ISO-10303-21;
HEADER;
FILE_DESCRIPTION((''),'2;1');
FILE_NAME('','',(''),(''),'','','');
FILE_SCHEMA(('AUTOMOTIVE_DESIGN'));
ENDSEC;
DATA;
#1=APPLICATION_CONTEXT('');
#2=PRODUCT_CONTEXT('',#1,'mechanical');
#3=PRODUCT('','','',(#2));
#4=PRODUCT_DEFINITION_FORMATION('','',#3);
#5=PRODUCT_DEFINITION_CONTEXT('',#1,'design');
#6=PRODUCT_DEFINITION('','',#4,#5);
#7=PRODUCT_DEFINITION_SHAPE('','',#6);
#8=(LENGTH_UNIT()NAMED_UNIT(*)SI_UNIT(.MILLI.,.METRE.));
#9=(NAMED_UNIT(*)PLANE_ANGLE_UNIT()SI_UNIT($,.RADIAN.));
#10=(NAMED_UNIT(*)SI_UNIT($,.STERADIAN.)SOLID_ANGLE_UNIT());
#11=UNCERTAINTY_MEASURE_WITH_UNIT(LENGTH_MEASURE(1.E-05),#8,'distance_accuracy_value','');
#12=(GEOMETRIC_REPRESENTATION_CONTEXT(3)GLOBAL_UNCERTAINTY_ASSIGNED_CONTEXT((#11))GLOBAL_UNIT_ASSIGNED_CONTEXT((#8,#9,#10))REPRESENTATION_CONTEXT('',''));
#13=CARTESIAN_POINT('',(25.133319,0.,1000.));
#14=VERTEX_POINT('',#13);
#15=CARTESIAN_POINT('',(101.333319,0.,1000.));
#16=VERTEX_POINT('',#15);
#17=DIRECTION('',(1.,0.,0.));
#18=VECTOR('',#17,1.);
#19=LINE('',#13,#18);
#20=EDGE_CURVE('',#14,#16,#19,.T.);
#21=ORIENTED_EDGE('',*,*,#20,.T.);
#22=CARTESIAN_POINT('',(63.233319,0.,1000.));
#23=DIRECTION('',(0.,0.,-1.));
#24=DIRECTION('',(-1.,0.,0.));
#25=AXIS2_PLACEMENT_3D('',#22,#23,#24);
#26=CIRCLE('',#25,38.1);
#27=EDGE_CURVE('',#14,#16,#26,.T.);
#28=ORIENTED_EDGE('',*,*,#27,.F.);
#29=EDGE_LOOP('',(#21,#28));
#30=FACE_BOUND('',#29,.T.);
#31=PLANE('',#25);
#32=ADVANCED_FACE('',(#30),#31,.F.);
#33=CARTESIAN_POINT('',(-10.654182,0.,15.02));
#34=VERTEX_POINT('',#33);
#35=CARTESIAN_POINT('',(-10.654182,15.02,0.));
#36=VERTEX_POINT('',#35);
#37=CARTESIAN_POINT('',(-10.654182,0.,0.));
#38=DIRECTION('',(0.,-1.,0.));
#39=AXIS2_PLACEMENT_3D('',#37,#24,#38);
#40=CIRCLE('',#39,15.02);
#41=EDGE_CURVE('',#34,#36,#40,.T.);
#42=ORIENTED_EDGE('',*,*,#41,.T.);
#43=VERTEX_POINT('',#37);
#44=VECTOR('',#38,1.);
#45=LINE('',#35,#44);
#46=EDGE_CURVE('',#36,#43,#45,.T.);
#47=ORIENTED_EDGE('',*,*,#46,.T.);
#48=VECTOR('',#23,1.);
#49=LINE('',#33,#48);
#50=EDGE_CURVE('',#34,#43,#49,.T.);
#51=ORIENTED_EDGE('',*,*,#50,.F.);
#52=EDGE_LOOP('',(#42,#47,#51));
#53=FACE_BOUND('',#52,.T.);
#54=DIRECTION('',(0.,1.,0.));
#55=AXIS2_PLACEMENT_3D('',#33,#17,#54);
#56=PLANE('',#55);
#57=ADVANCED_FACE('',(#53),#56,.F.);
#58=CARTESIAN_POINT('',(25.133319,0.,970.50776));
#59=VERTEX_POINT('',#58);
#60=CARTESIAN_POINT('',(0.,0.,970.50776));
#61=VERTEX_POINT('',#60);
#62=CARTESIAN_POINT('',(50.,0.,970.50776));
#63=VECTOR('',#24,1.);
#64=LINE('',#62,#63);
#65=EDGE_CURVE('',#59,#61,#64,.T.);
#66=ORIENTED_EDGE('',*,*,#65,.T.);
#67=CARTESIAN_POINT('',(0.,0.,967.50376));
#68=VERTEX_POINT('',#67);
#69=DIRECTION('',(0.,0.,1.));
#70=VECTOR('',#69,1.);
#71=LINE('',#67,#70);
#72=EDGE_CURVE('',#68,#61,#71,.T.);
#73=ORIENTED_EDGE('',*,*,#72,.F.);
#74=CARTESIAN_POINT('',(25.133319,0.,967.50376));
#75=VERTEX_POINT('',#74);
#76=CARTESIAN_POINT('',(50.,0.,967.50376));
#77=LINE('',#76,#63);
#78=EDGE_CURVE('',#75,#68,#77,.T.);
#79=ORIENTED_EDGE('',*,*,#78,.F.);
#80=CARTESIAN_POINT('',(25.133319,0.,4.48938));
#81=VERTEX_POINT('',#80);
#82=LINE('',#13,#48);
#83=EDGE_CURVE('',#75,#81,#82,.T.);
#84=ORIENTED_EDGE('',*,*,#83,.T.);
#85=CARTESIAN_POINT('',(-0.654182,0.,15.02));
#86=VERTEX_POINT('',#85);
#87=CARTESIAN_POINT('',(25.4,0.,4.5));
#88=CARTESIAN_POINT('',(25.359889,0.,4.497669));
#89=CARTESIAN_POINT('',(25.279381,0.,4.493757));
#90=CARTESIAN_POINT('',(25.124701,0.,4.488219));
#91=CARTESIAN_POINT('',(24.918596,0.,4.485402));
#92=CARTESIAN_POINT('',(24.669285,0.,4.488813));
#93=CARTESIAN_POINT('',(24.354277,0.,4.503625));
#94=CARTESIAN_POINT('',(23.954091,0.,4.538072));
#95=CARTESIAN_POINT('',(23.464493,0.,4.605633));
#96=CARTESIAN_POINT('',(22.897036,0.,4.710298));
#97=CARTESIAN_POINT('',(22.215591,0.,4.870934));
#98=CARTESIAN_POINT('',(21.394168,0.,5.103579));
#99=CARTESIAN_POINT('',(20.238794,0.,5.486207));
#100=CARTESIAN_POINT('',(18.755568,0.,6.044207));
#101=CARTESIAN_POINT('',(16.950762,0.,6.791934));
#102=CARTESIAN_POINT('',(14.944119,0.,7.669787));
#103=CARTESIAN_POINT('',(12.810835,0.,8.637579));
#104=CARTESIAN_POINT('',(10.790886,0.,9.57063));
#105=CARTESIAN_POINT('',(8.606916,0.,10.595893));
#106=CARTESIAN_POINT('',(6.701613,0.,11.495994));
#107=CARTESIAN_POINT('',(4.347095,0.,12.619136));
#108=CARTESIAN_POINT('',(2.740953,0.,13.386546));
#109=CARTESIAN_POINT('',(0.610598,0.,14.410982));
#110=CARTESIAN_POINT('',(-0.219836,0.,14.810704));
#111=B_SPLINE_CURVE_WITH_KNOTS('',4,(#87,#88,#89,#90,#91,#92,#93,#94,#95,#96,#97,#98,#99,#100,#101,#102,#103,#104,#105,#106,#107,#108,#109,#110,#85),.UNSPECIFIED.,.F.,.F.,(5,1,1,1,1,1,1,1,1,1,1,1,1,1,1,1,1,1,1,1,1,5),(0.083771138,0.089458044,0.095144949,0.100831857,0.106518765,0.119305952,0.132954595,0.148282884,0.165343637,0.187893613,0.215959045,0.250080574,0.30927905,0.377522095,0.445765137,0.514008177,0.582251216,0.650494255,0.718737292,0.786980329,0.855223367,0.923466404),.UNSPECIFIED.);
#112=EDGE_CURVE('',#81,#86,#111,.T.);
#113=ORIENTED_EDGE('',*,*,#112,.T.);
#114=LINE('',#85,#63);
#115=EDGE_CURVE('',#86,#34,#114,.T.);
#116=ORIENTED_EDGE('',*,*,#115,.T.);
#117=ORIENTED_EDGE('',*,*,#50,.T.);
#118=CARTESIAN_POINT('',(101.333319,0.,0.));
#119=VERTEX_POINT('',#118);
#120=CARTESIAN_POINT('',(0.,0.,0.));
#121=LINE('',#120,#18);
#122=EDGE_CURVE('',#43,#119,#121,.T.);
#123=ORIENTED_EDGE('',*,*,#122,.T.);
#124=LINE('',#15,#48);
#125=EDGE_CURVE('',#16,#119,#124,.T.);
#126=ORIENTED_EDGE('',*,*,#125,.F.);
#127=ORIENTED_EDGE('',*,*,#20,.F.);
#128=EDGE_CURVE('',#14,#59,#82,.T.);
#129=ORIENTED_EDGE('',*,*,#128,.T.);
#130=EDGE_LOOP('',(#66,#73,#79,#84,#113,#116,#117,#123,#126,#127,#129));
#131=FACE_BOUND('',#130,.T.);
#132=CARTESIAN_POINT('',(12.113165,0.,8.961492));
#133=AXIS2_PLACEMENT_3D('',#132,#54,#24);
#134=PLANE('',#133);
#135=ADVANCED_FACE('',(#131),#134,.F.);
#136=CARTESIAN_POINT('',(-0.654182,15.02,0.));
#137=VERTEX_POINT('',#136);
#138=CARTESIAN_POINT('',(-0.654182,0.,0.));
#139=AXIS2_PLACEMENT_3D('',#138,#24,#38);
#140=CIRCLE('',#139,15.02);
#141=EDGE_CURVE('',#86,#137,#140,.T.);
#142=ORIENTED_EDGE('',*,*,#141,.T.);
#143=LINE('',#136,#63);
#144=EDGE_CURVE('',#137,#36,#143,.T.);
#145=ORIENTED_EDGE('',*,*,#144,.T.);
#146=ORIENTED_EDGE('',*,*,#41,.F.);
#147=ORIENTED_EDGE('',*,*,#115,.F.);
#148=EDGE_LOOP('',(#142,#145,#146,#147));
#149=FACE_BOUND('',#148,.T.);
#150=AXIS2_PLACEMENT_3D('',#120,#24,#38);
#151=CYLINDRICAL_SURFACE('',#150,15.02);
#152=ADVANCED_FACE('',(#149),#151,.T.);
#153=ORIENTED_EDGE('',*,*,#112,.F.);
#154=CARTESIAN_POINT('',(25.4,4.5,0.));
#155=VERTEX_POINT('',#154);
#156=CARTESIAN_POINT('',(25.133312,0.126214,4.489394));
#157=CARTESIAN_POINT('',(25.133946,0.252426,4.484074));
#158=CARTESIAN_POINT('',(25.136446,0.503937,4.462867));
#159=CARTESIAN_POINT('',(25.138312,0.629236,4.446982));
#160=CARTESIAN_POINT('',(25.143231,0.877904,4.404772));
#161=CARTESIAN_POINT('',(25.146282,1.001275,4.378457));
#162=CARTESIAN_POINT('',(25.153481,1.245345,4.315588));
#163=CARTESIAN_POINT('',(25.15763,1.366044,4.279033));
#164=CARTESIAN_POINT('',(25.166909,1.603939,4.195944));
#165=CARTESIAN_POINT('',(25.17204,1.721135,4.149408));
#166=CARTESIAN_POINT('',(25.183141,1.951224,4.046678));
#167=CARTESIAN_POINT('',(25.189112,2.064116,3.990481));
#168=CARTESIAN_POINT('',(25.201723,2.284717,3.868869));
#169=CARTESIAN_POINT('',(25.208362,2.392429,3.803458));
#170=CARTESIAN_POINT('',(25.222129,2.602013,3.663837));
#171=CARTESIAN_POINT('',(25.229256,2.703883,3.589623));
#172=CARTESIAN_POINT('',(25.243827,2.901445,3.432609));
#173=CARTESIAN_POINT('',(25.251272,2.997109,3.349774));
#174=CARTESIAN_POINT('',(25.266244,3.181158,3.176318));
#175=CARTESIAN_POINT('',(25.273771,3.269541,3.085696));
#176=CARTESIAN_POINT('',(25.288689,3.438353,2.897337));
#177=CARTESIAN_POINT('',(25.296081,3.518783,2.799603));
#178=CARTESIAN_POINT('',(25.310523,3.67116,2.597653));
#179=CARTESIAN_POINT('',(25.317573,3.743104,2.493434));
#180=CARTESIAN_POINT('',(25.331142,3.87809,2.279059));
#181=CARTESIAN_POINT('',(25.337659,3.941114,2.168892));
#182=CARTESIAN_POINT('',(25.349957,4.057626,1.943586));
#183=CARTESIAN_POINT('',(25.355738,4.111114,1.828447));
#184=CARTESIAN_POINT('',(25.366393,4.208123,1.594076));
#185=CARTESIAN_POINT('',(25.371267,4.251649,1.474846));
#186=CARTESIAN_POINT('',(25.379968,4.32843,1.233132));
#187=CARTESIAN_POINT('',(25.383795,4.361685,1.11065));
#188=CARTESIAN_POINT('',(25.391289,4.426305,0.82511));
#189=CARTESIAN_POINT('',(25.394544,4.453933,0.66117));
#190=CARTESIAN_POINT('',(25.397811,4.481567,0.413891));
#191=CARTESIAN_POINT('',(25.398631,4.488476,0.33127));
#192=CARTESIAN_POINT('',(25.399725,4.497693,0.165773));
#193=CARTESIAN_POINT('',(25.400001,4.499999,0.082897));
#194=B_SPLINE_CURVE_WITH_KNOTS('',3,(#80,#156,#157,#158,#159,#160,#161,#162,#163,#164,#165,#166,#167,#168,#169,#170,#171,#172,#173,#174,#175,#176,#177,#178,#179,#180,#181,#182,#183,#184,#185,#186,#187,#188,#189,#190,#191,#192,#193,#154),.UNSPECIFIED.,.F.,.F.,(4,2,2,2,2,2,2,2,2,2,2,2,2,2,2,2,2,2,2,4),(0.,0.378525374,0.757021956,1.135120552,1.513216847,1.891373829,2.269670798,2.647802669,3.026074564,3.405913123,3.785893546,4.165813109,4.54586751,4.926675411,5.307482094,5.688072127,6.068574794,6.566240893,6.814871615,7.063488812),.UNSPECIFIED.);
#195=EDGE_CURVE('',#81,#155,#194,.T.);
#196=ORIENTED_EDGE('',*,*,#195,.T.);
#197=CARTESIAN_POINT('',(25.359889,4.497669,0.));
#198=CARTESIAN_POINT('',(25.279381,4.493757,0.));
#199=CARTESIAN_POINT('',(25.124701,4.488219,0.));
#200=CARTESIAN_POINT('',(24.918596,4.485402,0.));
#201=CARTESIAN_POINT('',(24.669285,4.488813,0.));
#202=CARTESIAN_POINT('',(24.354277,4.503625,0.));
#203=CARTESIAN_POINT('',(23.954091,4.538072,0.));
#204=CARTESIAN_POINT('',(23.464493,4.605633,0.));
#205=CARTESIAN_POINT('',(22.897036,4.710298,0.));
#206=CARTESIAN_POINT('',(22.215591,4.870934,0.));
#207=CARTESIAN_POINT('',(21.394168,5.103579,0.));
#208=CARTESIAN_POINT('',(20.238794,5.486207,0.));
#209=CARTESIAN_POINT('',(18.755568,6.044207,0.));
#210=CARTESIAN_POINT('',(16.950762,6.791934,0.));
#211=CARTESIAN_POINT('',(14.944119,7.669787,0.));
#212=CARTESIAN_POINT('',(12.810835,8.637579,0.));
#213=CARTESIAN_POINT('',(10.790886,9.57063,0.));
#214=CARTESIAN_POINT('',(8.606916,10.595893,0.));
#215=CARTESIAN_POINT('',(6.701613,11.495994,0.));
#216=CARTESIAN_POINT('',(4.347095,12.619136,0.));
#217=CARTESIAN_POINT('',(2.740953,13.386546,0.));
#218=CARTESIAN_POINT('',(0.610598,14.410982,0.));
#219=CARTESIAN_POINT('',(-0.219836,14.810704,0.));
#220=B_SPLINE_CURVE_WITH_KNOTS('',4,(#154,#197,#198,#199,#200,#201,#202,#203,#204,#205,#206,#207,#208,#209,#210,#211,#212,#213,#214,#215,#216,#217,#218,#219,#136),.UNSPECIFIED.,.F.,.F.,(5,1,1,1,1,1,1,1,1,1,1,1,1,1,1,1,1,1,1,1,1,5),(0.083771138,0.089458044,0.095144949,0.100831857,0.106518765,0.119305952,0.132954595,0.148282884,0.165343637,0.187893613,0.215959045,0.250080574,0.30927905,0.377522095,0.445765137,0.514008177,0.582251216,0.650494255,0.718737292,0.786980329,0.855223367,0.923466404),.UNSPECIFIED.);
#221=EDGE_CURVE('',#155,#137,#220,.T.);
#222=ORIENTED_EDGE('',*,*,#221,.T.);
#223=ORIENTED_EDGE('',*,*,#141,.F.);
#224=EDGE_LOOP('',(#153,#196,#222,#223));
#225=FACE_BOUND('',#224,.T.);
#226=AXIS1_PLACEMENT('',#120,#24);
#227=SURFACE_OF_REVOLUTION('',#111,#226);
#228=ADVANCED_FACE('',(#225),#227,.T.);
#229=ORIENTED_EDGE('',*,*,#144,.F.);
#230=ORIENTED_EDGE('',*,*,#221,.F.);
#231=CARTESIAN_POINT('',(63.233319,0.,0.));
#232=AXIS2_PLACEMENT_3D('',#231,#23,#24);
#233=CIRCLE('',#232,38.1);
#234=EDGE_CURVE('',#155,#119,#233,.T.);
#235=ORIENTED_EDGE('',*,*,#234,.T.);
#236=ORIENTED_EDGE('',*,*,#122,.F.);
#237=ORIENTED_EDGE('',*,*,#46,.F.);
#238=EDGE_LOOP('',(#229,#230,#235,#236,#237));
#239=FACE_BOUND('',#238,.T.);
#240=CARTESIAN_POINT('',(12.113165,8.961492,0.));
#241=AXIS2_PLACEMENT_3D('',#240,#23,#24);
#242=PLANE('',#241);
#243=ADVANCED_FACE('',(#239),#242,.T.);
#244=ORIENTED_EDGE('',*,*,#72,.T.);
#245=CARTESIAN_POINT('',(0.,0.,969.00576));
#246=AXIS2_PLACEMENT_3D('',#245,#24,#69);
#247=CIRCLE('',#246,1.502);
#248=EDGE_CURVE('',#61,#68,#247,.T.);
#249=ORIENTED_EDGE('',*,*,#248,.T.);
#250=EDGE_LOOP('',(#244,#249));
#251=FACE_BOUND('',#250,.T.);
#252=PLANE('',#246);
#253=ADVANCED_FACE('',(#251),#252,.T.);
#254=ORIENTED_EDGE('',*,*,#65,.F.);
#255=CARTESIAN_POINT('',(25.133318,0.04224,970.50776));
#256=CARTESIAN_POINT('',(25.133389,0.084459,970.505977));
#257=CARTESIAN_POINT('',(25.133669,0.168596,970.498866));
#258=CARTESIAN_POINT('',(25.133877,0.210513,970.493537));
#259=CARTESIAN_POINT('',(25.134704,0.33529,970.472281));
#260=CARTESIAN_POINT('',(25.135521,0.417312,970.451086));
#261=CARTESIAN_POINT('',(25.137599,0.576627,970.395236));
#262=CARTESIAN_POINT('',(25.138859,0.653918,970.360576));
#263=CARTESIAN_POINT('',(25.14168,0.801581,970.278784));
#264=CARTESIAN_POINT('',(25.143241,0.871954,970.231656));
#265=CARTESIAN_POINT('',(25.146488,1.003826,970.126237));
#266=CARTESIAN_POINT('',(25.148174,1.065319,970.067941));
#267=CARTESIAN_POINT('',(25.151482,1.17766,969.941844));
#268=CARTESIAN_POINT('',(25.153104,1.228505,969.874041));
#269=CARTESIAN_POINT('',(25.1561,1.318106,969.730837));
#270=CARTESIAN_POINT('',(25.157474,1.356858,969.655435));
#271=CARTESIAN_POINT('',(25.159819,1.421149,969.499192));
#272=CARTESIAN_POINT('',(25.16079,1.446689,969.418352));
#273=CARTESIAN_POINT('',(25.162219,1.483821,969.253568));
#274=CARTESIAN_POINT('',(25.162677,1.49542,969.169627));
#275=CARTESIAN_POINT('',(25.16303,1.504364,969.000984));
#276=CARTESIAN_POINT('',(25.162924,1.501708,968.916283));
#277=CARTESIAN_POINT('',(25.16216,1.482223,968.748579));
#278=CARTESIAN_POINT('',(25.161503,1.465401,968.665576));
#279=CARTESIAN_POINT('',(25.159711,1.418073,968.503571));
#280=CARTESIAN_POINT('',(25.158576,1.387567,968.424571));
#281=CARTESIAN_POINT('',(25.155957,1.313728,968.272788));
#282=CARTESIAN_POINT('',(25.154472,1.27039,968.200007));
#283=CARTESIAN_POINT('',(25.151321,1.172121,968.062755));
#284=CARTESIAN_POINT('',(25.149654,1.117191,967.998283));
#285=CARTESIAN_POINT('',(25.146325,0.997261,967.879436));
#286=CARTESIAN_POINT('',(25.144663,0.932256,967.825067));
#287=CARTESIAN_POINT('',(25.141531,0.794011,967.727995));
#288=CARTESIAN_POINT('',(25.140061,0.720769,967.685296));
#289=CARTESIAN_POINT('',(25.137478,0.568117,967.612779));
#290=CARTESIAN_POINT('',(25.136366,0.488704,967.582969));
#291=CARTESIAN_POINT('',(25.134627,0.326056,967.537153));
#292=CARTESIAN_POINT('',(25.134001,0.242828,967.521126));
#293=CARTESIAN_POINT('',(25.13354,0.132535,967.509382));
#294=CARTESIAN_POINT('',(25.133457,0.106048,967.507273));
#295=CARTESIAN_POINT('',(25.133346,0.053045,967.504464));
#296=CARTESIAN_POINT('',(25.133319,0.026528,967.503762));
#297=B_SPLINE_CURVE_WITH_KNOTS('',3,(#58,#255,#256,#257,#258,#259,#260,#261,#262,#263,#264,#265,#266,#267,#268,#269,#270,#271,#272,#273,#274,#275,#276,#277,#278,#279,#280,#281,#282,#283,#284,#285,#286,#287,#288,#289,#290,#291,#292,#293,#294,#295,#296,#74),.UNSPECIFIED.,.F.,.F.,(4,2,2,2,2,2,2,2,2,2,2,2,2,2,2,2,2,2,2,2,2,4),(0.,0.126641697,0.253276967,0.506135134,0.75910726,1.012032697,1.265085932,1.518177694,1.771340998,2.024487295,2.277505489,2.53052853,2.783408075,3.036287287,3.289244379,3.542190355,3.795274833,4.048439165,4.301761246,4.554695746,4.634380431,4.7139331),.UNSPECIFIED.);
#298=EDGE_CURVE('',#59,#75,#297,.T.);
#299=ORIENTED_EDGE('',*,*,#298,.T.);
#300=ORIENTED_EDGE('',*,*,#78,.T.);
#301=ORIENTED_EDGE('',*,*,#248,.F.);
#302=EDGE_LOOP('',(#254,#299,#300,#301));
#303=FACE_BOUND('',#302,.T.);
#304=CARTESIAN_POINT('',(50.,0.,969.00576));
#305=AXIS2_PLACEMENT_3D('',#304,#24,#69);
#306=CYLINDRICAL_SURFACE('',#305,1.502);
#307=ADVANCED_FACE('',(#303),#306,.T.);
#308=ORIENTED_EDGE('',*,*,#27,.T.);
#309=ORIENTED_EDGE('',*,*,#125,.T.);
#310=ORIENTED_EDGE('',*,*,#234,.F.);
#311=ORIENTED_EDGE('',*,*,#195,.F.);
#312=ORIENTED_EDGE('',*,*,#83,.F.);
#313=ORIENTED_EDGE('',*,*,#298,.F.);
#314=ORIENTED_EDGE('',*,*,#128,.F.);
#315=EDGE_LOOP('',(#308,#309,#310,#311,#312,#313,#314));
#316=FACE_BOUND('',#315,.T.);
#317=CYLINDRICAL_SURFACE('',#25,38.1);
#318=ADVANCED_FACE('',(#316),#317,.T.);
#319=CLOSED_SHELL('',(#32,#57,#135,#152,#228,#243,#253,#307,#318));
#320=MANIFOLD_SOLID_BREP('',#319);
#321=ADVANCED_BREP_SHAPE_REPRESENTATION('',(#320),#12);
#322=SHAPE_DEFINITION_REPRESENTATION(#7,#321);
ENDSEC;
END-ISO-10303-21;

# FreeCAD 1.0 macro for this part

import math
import FreeCAD as App
import Part
import Sketcher

V = App.Vector
Q = App.Units.Quantity

doc = App.newDocument("Part")
params = doc.addObject("Spreadsheet::Sheet", "Params")
for row, (alias, value) in enumerate([
    ("sketch1_width", "10 mm"),
    ("revolution_angle", "90 deg"),
    ("sketch2_radius", "38.1 mm"),
    ("pad1_length", "1000 mm"),
    ("pad2_length", "50 mm"),
], start=1):
    params.set(f"A{row}", alias)
    params.set(f"B{row}", "=" + value)
    params.setAlias(f"B{row}", alias)

body = doc.addObject("PartDesign::Body", "Body")

sketch1 = body.newObject("Sketcher::SketchObject", "Sketch")
sketch1.AttachmentSupport = (doc.getObject("XY_Plane"), [""])
sketch1.MapMode = "FlatFace"
sketch1.addGeometry([
    Part.LineSegment(V(-0.654182, 15.02, 0), V(-10.654182, 15.02, 0)),
    Part.LineSegment(V(-10.654182, 15.02, 0), V(-10.654182, 0, 0)),
    Part.LineSegment(V(-10.654182, 0, 0), V(35.4, 0, 0)),
    Part.LineSegment(V(35.4, 0, 0), V(35.4, 4.5, 0)),
    Part.LineSegment(V(35.4, 4.5, 0), V(25.4, 4.5, 0)),
    Part.BSplineCurve([V(-0.654182, 15.02, 0), V(-0.219836, 14.810704, 0), V(0.610598, 14.410982, 0), V(2.740953, 13.386546, 0), V(4.347095, 12.619136, 0), V(6.701613, 11.495994, 0), V(8.606916, 10.595893, 0), V(10.790886, 9.57063, 0), V(12.810835, 8.637579, 0), V(14.944119, 7.669787, 0), V(16.950762, 6.791934, 0), V(18.755568, 6.044207, 0), V(20.238794, 5.486207, 0), V(21.394168, 5.103579, 0), V(22.215591, 4.870934, 0), V(22.897036, 4.710298, 0), V(23.464493, 4.605633, 0), V(23.954091, 4.538072, 0), V(24.354277, 4.503625, 0), V(24.669285, 4.488813, 0), V(24.918596, 4.485402, 0), V(25.124701, 4.488219, 0), V(25.279381, 4.493757, 0), V(25.359889, 4.497669, 0), V(25.4, 4.5, 0)], [5, 1, 1, 1, 1, 1, 1, 1, 1, 1, 1, 1, 1, 1, 1, 1, 1, 1, 1, 1, 1, 5], [0.083771138, 0.152014176, 0.220257214, 0.288500251, 0.356743288, 0.424986327, 0.493229366, 0.561472406, 0.629715448, 0.697958493, 0.757156968, 0.791278497, 0.81934393, 0.841893906, 0.858954658, 0.874282948, 0.887931591, 0.900718778, 0.906405686, 0.912092593, 0.917779499, 0.923466404], False, 4, [1, 1, 1, 1, 1, 1, 1, 1, 1, 1, 1, 1, 1, 1, 1, 1, 1, 1, 1, 1, 1, 1, 1, 1, 1], False),
], False)
sketch1.addConstraint([
    Sketcher.Constraint("Block", 5),
    Sketcher.Constraint("Coincident", 0, 2, 1, 1),
    Sketcher.Constraint("Coincident", 1, 2, 2, 1),
    Sketcher.Constraint("Coincident", 2, 2, 3, 1),
    Sketcher.Constraint("Coincident", 3, 2, 4, 1),
    Sketcher.Constraint("Coincident", 4, 2, 5, 2),
    Sketcher.Constraint("Coincident", 5, 1, 0, 1),
    Sketcher.Constraint("Horizontal", 0),
    Sketcher.Constraint("Vertical", 1),
    Sketcher.Constraint("Horizontal", 2),
    Sketcher.Constraint("Vertical", 3),
    Sketcher.Constraint("Horizontal", 4),
    Sketcher.Constraint("PointOnObject", 1, 2, -1),
    Sketcher.Constraint("Equal", 0, 4),
    Sketcher.Constraint("DistanceX", 0, 2, 0, 1, Q("10 mm")),
])
sketch1.setExpression("Constraints[14]", "Params.sketch1_width")
revolution = body.newObject("PartDesign::Revolution", "Revolution")
revolution.Profile = sketch1
revolution.ReferenceAxis = (sketch1, ["H_Axis"])
revolution.setExpression("Angle", "Params.revolution_angle")

sketch2 = body.newObject("Sketcher::SketchObject", "Sketch001")
sketch2.AttachmentSupport = (doc.getObject("XY_Plane"), [""])
sketch2.MapMode = "FlatFace"
sketch2.addGeometry([
    Part.LineSegment(V(25.133319, 0, 0), V(101.333319, 0, 0)),
    Part.ArcOfCircle(Part.Circle(V(63.233319, 0, 0), V(0, 0, 1), 38.1), math.radians(0), math.radians(180)),
], False)
sketch2.addConstraint([
    Sketcher.Constraint("Coincident", 0, 1, 1, 2),
    Sketcher.Constraint("Coincident", 1, 1, 0, 2),
    Sketcher.Constraint("Horizontal", 0),
    Sketcher.Constraint("PointOnObject", 1, 3, -1),
    Sketcher.Constraint("PointOnObject", 0, 1, -1),
    Sketcher.Constraint("Radius", 1, Q("38.1 mm")),
    Sketcher.Constraint("DistanceX", -1, 1, 1, 3, Q("63.233319 mm")),
])
sketch2.setExpression("Constraints[5]", "Params.sketch2_radius")
pad1 = body.newObject("PartDesign::Pad", "Pad")
pad1.Profile = sketch2
pad1.setExpression("Length", "Params.pad1_length")

sketch3 = body.newObject("Sketcher::SketchObject", "Sketch002")
sketch3.AttachmentSupport = (doc.getObject("YZ_Plane"), [""])
sketch3.MapMode = "FlatFace"
sketch3.addGeometry([
    Part.LineSegment(V(0, 970.50776, 0), V(0, 967.50376, 0)),
    Part.ArcOfCircle(Part.Circle(V(0, 969.00576, 0), V(0, 0, 1), 1.502), math.radians(-90), math.radians(90)),
], False)
sketch3.addConstraint([
    Sketcher.Constraint("Coincident", 0, 1, 1, 2),
    Sketcher.Constraint("Coincident", 1, 1, 0, 2),
    Sketcher.Constraint("Vertical", 0),
    Sketcher.Constraint("PointOnObject", 1, 3, -2),
    Sketcher.Constraint("PointOnObject", 0, 1, -2),
    Sketcher.Constraint("Radius", 1, Q("1.502 mm")),
    Sketcher.Constraint("DistanceY", -1, 1, 1, 3, Q("969.00576 mm")),
])
pad2 = body.newObject("PartDesign::Pad", "Pad001")
pad2.Profile = sketch3
pad2.setExpression("Length", "Params.pad2_length")

doc.recompute()
